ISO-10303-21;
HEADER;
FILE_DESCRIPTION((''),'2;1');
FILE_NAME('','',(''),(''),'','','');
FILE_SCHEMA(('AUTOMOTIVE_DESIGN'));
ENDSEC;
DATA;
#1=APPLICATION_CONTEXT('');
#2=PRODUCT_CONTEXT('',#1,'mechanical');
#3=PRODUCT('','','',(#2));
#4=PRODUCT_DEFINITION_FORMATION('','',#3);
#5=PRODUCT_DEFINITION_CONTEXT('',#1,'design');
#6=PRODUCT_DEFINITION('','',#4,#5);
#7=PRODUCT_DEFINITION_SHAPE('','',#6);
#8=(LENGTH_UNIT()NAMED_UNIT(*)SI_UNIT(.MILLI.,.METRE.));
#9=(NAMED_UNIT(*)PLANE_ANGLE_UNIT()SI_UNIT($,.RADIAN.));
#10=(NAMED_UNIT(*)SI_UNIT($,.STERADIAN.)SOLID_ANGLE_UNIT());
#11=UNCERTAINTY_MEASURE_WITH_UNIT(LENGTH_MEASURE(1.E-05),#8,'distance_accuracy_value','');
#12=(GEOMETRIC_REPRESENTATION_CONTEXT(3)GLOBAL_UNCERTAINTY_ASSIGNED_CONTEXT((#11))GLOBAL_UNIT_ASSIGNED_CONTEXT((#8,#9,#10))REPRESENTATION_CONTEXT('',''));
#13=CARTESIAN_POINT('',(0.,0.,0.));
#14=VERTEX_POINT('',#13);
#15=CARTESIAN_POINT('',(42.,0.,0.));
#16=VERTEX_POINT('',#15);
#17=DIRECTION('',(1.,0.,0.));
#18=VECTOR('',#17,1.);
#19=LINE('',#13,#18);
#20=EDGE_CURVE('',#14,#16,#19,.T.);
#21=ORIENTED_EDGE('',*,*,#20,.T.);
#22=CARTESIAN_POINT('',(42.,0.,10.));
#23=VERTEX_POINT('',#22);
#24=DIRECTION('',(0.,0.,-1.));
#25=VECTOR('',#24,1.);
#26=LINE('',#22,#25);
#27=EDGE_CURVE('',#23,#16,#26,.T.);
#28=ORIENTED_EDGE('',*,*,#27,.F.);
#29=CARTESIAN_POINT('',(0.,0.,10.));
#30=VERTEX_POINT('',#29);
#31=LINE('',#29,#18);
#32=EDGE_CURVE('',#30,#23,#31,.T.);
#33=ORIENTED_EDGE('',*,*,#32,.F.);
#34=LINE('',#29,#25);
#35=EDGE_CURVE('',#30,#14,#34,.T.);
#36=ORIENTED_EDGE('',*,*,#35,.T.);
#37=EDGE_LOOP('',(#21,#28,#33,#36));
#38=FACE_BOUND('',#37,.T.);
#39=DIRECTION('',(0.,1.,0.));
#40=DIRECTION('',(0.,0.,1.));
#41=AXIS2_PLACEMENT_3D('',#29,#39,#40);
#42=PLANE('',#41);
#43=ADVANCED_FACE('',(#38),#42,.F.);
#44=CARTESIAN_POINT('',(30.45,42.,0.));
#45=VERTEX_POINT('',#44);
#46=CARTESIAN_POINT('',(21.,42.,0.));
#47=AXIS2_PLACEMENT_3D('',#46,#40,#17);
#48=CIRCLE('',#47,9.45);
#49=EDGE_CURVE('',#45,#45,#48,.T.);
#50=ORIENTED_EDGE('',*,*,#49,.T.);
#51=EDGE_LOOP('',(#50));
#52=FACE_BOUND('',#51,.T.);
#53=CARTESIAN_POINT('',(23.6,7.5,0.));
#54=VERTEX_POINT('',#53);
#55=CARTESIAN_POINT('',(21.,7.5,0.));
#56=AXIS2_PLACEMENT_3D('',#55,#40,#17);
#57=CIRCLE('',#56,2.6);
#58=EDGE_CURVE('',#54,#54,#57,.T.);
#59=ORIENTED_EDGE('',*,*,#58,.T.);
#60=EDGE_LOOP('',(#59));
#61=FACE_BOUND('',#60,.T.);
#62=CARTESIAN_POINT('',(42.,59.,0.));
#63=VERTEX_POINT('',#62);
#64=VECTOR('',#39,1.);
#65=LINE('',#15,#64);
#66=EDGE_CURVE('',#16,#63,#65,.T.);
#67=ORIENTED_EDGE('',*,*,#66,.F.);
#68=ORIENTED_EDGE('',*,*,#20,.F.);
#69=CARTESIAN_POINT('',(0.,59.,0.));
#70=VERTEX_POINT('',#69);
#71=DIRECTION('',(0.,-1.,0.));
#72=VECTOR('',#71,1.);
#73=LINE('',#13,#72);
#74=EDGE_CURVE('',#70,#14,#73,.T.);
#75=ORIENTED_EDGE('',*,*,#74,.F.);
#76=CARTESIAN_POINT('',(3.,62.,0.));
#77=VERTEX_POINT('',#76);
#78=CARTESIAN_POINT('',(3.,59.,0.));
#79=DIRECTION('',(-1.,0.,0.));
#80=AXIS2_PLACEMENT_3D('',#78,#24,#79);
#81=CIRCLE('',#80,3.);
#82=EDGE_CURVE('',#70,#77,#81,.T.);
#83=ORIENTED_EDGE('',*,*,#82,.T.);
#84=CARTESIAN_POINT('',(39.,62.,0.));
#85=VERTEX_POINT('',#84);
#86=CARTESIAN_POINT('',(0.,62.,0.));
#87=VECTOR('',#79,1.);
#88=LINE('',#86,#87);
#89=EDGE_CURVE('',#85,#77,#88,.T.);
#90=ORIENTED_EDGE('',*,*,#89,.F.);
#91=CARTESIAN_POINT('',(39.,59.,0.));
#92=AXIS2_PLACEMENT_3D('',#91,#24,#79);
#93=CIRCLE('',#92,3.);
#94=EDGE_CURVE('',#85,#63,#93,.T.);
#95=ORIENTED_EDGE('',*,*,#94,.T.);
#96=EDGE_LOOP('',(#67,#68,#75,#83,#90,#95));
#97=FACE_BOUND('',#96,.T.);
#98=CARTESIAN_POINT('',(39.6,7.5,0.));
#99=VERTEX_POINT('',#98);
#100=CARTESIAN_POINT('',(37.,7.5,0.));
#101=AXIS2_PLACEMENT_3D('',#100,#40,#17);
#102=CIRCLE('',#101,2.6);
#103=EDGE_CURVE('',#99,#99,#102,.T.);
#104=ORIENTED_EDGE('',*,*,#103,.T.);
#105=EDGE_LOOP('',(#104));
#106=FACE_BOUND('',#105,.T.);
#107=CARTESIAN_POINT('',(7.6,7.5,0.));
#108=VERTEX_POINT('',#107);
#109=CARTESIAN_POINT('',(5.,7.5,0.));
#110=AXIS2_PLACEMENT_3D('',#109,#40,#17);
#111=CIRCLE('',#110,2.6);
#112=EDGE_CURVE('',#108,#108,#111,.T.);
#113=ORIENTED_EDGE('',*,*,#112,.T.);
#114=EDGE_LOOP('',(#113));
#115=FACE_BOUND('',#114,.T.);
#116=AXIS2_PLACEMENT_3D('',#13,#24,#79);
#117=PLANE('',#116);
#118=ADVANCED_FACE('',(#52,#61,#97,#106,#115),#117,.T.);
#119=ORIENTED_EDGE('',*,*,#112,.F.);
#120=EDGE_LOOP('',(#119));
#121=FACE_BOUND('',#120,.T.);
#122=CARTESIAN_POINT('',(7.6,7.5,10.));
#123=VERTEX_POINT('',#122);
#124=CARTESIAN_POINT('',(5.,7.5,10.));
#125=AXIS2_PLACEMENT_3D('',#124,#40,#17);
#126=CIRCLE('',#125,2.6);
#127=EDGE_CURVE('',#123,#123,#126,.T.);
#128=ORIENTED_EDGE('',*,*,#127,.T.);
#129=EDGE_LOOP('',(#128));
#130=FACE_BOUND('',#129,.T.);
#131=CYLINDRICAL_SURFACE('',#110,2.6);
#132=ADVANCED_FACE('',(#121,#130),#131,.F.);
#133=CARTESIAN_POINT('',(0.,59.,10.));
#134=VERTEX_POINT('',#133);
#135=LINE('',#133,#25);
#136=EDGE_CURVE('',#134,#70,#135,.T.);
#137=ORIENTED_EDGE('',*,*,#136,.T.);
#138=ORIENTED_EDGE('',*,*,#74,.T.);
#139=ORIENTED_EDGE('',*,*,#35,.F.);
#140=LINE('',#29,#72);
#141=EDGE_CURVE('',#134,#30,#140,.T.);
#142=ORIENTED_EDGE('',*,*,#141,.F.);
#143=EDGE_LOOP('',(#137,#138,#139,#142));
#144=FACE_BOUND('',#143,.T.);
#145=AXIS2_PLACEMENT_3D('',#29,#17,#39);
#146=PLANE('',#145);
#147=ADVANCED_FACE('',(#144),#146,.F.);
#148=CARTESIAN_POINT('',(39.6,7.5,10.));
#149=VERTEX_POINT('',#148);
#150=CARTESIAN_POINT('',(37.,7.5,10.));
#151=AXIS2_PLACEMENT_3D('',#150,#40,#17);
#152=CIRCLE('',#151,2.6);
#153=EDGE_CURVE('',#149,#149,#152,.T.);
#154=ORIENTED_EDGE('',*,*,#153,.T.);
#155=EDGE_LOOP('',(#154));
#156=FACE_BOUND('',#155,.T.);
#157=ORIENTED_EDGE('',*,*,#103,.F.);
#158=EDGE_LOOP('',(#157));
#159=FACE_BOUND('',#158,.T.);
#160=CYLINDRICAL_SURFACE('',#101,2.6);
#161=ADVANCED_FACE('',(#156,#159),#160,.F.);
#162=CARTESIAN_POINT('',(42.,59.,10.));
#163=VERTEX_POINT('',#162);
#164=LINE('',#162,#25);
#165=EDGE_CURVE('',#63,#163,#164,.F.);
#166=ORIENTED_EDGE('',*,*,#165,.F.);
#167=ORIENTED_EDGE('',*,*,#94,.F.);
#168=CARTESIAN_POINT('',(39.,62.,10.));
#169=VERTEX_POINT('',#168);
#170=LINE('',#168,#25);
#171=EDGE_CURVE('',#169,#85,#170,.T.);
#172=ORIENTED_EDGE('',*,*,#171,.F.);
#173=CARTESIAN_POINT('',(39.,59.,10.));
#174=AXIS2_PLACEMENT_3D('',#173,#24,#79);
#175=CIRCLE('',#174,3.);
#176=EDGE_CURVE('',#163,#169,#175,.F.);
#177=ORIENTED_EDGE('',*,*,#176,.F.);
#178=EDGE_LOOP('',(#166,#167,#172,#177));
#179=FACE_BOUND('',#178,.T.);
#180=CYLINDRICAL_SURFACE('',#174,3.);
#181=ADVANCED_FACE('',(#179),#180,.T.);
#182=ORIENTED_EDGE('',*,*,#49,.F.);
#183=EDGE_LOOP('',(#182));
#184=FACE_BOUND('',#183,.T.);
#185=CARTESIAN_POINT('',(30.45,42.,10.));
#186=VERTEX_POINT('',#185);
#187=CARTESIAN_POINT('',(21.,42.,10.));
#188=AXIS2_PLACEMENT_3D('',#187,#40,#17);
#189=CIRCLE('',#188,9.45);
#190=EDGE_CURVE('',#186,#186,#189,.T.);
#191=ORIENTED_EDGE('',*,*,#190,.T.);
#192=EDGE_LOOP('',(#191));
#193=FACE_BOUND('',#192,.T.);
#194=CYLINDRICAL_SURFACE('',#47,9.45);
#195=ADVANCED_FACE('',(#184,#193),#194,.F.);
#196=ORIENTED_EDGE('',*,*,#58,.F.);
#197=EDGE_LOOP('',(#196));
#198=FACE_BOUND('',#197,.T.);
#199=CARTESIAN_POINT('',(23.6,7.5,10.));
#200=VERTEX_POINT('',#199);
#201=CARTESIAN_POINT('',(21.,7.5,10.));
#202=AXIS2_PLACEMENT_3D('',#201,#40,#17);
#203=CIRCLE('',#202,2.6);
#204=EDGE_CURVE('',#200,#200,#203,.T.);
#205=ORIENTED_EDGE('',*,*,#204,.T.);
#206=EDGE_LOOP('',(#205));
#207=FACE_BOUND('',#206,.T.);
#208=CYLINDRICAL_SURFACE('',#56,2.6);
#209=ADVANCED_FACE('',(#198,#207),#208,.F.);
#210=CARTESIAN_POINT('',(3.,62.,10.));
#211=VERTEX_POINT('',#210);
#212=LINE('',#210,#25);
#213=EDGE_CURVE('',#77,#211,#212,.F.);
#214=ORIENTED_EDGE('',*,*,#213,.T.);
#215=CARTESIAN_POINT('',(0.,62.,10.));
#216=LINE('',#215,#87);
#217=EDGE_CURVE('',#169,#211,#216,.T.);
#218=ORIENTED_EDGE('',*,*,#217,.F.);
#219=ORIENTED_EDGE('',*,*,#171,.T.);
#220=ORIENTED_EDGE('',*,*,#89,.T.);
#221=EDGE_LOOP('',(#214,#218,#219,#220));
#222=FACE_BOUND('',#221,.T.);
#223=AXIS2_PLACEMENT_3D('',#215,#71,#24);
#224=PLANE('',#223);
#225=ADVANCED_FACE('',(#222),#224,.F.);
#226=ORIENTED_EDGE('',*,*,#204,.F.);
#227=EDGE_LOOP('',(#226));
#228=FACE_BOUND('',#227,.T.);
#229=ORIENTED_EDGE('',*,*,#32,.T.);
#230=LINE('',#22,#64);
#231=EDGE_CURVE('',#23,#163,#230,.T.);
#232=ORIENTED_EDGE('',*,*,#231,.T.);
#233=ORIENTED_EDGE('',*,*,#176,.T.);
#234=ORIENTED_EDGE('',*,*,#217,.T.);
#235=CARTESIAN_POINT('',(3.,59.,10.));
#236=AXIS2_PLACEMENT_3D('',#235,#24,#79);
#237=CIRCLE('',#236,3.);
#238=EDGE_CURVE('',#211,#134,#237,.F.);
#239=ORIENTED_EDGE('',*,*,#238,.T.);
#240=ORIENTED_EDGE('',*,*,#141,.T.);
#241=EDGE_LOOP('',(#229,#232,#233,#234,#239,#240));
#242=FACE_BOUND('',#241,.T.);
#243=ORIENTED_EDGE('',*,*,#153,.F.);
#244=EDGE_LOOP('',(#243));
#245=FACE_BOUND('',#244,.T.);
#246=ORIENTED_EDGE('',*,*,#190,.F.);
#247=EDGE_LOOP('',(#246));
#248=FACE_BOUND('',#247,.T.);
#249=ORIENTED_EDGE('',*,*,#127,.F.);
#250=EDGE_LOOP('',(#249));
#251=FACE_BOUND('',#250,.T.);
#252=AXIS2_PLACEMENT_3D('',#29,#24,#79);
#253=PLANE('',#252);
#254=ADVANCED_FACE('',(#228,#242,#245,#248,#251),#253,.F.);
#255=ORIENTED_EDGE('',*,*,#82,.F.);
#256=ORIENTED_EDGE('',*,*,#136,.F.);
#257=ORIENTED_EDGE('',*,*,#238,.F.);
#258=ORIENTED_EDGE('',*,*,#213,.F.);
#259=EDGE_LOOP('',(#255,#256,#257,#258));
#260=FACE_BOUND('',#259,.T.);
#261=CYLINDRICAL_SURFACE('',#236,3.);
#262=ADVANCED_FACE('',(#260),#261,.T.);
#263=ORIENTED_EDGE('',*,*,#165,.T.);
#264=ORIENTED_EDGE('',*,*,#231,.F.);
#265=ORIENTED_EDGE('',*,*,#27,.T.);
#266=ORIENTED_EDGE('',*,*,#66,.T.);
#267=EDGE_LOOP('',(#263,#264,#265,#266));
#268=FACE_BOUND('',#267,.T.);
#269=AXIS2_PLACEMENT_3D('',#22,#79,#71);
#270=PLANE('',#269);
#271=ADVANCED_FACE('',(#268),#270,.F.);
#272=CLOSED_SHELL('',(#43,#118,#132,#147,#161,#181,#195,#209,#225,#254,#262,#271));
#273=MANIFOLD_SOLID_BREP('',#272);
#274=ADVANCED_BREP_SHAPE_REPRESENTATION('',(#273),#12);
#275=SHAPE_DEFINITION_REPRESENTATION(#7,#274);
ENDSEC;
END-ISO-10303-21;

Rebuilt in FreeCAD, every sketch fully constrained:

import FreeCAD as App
import Part
import Sketcher
from FreeCAD import Vector


def edges_at(feature, points):
    """Names of the edges that pass closest to the given points."""
    edges = feature.Shape.Edges
    near = lambda p: min(range(len(edges)), key=lambda i: edges[i].distToShape(Part.Vertex(*p))[0])
    return sorted({f"Edge{near(p) + 1}" for p in points})

doc = App.newDocument("Part")
body = doc.addObject("PartDesign::Body", "Body")

# Sketch on XY plane
sketch1 = doc.addObject("Sketcher::SketchObject", "Sketch")
body.addObject(sketch1)
sketch1.AttachmentSupport = (doc.XY_Plane, [""])
sketch1.MapMode = "FlatFace"
sketch1.addGeometry([
    Part.LineSegment(Vector(0, 62, 0), Vector(0, 0, 0)),  # 0
    Part.LineSegment(Vector(0, 0, 0), Vector(42, 0, 0)),  # 1
    Part.LineSegment(Vector(42, 0, 0), Vector(42, 62, 0)),  # 2
    Part.LineSegment(Vector(42, 62, 0), Vector(0, 62, 0)),  # 3
    Part.Circle(Vector(21, 42, 0), Vector(0, 0, 1), 4.2),  # 4
], False)
sketch1.addConstraint([
    Sketcher.Constraint("Coincident", 0, 2, 1, 1),
    Sketcher.Constraint("Coincident", 1, 2, 2, 1),
    Sketcher.Constraint("Coincident", 2, 2, 3, 1),
    Sketcher.Constraint("Coincident", 3, 2, 0, 1),
    Sketcher.Constraint("Vertical", 0),
    Sketcher.Constraint("Horizontal", 1),
    Sketcher.Constraint("Vertical", 2),
    Sketcher.Constraint("Horizontal", 3),
    Sketcher.Constraint("Coincident", 0, 2, -1, 1),
    Sketcher.Constraint("Diameter", 4, 8.3),
    Sketcher.Constraint("DistanceX", 1, 1, 1, 2, 42.0),
    Sketcher.Constraint("DistanceY", 0, 2, 0, 1, 62.0),
    Sketcher.Constraint("DistanceX", -1, 1, 4, 3, 21.0),
    Sketcher.Constraint("DistanceY", -1, 1, 4, 3, 42.0),
])
pad1 = doc.addObject("PartDesign::Pad", "Pad")
body.addObject(pad1)
pad1.Profile = sketch1
pad1.Length = 10
doc.recompute()

fillet = doc.addObject("PartDesign::Fillet", "Fillet")
body.addObject(fillet)
fillet.Base = (pad1, edges_at(pad1, [(0, 62, 5), (42, 62, 5)]))
fillet.Radius = 3

# Sketch on XY plane
sketch2 = doc.addObject("Sketcher::SketchObject", "Sketch001")
body.addObject(sketch2)
sketch2.AttachmentSupport = (doc.XY_Plane, [""])
sketch2.MapMode = "FlatFace"
sketch2.AttachmentOffset = App.Placement(Vector(0, 0, 10), App.Rotation())
sketch2.addGeometry([
    Part.Circle(Vector(5, 7.5, 0), Vector(0, 0, 1), 2.6),
    Part.Circle(Vector(21, 7.5, 0), Vector(0, 0, 1), 2.6),
    Part.Circle(Vector(37, 7.5, 0), Vector(0, 0, 1), 2.6),
], False)
sketch2.addConstraint([
    Sketcher.Constraint("Equal", 0, 1),
    Sketcher.Constraint("Equal", 1, 2),
    Sketcher.Constraint("Horizontal", 0, 3, 1, 3),
    Sketcher.Constraint("Horizontal", 1, 3, 2, 3),
    Sketcher.Constraint("Diameter", 0, 5.2),
    Sketcher.Constraint("DistanceX", -1, 1, 0, 3, 5.0),
    Sketcher.Constraint("DistanceX", -1, 1, 1, 3, 21.0),
    Sketcher.Constraint("DistanceX", -1, 1, 2, 3, 37.0),
    Sketcher.Constraint("DistanceY", -1, 1, 0, 3, 7.5),
])
pocket1 = doc.addObject("PartDesign::Pocket", "Pocket")
body.addObject(pocket1)
pocket1.Profile = sketch2
pocket1.Type = "ThroughAll"

# Sketch on XY plane
sketch3 = doc.addObject("Sketcher::SketchObject", "Sketch002")
body.addObject(sketch3)
sketch3.AttachmentSupport = (doc.XY_Plane, [""])
sketch3.MapMode = "FlatFace"
sketch3.AttachmentOffset = App.Placement(Vector(0, 0, 10), App.Rotation())
sketch3.addGeometry(Part.Circle(Vector(21, 42, 0), Vector(0, 0, 1), 9), False)
sketch3.addConstraint([
    Sketcher.Constraint("Diameter", 0, 18.9),
    Sketcher.Constraint("DistanceX", -1, 1, 0, 3, 21.0),
    Sketcher.Constraint("DistanceY", -1, 1, 0, 3, 42.0),
])
pocket2 = doc.addObject("PartDesign::Pocket", "Pocket001")
body.addObject(pocket2)
pocket2.Profile = sketch3
pocket2.Length = 10

doc.recompute()
